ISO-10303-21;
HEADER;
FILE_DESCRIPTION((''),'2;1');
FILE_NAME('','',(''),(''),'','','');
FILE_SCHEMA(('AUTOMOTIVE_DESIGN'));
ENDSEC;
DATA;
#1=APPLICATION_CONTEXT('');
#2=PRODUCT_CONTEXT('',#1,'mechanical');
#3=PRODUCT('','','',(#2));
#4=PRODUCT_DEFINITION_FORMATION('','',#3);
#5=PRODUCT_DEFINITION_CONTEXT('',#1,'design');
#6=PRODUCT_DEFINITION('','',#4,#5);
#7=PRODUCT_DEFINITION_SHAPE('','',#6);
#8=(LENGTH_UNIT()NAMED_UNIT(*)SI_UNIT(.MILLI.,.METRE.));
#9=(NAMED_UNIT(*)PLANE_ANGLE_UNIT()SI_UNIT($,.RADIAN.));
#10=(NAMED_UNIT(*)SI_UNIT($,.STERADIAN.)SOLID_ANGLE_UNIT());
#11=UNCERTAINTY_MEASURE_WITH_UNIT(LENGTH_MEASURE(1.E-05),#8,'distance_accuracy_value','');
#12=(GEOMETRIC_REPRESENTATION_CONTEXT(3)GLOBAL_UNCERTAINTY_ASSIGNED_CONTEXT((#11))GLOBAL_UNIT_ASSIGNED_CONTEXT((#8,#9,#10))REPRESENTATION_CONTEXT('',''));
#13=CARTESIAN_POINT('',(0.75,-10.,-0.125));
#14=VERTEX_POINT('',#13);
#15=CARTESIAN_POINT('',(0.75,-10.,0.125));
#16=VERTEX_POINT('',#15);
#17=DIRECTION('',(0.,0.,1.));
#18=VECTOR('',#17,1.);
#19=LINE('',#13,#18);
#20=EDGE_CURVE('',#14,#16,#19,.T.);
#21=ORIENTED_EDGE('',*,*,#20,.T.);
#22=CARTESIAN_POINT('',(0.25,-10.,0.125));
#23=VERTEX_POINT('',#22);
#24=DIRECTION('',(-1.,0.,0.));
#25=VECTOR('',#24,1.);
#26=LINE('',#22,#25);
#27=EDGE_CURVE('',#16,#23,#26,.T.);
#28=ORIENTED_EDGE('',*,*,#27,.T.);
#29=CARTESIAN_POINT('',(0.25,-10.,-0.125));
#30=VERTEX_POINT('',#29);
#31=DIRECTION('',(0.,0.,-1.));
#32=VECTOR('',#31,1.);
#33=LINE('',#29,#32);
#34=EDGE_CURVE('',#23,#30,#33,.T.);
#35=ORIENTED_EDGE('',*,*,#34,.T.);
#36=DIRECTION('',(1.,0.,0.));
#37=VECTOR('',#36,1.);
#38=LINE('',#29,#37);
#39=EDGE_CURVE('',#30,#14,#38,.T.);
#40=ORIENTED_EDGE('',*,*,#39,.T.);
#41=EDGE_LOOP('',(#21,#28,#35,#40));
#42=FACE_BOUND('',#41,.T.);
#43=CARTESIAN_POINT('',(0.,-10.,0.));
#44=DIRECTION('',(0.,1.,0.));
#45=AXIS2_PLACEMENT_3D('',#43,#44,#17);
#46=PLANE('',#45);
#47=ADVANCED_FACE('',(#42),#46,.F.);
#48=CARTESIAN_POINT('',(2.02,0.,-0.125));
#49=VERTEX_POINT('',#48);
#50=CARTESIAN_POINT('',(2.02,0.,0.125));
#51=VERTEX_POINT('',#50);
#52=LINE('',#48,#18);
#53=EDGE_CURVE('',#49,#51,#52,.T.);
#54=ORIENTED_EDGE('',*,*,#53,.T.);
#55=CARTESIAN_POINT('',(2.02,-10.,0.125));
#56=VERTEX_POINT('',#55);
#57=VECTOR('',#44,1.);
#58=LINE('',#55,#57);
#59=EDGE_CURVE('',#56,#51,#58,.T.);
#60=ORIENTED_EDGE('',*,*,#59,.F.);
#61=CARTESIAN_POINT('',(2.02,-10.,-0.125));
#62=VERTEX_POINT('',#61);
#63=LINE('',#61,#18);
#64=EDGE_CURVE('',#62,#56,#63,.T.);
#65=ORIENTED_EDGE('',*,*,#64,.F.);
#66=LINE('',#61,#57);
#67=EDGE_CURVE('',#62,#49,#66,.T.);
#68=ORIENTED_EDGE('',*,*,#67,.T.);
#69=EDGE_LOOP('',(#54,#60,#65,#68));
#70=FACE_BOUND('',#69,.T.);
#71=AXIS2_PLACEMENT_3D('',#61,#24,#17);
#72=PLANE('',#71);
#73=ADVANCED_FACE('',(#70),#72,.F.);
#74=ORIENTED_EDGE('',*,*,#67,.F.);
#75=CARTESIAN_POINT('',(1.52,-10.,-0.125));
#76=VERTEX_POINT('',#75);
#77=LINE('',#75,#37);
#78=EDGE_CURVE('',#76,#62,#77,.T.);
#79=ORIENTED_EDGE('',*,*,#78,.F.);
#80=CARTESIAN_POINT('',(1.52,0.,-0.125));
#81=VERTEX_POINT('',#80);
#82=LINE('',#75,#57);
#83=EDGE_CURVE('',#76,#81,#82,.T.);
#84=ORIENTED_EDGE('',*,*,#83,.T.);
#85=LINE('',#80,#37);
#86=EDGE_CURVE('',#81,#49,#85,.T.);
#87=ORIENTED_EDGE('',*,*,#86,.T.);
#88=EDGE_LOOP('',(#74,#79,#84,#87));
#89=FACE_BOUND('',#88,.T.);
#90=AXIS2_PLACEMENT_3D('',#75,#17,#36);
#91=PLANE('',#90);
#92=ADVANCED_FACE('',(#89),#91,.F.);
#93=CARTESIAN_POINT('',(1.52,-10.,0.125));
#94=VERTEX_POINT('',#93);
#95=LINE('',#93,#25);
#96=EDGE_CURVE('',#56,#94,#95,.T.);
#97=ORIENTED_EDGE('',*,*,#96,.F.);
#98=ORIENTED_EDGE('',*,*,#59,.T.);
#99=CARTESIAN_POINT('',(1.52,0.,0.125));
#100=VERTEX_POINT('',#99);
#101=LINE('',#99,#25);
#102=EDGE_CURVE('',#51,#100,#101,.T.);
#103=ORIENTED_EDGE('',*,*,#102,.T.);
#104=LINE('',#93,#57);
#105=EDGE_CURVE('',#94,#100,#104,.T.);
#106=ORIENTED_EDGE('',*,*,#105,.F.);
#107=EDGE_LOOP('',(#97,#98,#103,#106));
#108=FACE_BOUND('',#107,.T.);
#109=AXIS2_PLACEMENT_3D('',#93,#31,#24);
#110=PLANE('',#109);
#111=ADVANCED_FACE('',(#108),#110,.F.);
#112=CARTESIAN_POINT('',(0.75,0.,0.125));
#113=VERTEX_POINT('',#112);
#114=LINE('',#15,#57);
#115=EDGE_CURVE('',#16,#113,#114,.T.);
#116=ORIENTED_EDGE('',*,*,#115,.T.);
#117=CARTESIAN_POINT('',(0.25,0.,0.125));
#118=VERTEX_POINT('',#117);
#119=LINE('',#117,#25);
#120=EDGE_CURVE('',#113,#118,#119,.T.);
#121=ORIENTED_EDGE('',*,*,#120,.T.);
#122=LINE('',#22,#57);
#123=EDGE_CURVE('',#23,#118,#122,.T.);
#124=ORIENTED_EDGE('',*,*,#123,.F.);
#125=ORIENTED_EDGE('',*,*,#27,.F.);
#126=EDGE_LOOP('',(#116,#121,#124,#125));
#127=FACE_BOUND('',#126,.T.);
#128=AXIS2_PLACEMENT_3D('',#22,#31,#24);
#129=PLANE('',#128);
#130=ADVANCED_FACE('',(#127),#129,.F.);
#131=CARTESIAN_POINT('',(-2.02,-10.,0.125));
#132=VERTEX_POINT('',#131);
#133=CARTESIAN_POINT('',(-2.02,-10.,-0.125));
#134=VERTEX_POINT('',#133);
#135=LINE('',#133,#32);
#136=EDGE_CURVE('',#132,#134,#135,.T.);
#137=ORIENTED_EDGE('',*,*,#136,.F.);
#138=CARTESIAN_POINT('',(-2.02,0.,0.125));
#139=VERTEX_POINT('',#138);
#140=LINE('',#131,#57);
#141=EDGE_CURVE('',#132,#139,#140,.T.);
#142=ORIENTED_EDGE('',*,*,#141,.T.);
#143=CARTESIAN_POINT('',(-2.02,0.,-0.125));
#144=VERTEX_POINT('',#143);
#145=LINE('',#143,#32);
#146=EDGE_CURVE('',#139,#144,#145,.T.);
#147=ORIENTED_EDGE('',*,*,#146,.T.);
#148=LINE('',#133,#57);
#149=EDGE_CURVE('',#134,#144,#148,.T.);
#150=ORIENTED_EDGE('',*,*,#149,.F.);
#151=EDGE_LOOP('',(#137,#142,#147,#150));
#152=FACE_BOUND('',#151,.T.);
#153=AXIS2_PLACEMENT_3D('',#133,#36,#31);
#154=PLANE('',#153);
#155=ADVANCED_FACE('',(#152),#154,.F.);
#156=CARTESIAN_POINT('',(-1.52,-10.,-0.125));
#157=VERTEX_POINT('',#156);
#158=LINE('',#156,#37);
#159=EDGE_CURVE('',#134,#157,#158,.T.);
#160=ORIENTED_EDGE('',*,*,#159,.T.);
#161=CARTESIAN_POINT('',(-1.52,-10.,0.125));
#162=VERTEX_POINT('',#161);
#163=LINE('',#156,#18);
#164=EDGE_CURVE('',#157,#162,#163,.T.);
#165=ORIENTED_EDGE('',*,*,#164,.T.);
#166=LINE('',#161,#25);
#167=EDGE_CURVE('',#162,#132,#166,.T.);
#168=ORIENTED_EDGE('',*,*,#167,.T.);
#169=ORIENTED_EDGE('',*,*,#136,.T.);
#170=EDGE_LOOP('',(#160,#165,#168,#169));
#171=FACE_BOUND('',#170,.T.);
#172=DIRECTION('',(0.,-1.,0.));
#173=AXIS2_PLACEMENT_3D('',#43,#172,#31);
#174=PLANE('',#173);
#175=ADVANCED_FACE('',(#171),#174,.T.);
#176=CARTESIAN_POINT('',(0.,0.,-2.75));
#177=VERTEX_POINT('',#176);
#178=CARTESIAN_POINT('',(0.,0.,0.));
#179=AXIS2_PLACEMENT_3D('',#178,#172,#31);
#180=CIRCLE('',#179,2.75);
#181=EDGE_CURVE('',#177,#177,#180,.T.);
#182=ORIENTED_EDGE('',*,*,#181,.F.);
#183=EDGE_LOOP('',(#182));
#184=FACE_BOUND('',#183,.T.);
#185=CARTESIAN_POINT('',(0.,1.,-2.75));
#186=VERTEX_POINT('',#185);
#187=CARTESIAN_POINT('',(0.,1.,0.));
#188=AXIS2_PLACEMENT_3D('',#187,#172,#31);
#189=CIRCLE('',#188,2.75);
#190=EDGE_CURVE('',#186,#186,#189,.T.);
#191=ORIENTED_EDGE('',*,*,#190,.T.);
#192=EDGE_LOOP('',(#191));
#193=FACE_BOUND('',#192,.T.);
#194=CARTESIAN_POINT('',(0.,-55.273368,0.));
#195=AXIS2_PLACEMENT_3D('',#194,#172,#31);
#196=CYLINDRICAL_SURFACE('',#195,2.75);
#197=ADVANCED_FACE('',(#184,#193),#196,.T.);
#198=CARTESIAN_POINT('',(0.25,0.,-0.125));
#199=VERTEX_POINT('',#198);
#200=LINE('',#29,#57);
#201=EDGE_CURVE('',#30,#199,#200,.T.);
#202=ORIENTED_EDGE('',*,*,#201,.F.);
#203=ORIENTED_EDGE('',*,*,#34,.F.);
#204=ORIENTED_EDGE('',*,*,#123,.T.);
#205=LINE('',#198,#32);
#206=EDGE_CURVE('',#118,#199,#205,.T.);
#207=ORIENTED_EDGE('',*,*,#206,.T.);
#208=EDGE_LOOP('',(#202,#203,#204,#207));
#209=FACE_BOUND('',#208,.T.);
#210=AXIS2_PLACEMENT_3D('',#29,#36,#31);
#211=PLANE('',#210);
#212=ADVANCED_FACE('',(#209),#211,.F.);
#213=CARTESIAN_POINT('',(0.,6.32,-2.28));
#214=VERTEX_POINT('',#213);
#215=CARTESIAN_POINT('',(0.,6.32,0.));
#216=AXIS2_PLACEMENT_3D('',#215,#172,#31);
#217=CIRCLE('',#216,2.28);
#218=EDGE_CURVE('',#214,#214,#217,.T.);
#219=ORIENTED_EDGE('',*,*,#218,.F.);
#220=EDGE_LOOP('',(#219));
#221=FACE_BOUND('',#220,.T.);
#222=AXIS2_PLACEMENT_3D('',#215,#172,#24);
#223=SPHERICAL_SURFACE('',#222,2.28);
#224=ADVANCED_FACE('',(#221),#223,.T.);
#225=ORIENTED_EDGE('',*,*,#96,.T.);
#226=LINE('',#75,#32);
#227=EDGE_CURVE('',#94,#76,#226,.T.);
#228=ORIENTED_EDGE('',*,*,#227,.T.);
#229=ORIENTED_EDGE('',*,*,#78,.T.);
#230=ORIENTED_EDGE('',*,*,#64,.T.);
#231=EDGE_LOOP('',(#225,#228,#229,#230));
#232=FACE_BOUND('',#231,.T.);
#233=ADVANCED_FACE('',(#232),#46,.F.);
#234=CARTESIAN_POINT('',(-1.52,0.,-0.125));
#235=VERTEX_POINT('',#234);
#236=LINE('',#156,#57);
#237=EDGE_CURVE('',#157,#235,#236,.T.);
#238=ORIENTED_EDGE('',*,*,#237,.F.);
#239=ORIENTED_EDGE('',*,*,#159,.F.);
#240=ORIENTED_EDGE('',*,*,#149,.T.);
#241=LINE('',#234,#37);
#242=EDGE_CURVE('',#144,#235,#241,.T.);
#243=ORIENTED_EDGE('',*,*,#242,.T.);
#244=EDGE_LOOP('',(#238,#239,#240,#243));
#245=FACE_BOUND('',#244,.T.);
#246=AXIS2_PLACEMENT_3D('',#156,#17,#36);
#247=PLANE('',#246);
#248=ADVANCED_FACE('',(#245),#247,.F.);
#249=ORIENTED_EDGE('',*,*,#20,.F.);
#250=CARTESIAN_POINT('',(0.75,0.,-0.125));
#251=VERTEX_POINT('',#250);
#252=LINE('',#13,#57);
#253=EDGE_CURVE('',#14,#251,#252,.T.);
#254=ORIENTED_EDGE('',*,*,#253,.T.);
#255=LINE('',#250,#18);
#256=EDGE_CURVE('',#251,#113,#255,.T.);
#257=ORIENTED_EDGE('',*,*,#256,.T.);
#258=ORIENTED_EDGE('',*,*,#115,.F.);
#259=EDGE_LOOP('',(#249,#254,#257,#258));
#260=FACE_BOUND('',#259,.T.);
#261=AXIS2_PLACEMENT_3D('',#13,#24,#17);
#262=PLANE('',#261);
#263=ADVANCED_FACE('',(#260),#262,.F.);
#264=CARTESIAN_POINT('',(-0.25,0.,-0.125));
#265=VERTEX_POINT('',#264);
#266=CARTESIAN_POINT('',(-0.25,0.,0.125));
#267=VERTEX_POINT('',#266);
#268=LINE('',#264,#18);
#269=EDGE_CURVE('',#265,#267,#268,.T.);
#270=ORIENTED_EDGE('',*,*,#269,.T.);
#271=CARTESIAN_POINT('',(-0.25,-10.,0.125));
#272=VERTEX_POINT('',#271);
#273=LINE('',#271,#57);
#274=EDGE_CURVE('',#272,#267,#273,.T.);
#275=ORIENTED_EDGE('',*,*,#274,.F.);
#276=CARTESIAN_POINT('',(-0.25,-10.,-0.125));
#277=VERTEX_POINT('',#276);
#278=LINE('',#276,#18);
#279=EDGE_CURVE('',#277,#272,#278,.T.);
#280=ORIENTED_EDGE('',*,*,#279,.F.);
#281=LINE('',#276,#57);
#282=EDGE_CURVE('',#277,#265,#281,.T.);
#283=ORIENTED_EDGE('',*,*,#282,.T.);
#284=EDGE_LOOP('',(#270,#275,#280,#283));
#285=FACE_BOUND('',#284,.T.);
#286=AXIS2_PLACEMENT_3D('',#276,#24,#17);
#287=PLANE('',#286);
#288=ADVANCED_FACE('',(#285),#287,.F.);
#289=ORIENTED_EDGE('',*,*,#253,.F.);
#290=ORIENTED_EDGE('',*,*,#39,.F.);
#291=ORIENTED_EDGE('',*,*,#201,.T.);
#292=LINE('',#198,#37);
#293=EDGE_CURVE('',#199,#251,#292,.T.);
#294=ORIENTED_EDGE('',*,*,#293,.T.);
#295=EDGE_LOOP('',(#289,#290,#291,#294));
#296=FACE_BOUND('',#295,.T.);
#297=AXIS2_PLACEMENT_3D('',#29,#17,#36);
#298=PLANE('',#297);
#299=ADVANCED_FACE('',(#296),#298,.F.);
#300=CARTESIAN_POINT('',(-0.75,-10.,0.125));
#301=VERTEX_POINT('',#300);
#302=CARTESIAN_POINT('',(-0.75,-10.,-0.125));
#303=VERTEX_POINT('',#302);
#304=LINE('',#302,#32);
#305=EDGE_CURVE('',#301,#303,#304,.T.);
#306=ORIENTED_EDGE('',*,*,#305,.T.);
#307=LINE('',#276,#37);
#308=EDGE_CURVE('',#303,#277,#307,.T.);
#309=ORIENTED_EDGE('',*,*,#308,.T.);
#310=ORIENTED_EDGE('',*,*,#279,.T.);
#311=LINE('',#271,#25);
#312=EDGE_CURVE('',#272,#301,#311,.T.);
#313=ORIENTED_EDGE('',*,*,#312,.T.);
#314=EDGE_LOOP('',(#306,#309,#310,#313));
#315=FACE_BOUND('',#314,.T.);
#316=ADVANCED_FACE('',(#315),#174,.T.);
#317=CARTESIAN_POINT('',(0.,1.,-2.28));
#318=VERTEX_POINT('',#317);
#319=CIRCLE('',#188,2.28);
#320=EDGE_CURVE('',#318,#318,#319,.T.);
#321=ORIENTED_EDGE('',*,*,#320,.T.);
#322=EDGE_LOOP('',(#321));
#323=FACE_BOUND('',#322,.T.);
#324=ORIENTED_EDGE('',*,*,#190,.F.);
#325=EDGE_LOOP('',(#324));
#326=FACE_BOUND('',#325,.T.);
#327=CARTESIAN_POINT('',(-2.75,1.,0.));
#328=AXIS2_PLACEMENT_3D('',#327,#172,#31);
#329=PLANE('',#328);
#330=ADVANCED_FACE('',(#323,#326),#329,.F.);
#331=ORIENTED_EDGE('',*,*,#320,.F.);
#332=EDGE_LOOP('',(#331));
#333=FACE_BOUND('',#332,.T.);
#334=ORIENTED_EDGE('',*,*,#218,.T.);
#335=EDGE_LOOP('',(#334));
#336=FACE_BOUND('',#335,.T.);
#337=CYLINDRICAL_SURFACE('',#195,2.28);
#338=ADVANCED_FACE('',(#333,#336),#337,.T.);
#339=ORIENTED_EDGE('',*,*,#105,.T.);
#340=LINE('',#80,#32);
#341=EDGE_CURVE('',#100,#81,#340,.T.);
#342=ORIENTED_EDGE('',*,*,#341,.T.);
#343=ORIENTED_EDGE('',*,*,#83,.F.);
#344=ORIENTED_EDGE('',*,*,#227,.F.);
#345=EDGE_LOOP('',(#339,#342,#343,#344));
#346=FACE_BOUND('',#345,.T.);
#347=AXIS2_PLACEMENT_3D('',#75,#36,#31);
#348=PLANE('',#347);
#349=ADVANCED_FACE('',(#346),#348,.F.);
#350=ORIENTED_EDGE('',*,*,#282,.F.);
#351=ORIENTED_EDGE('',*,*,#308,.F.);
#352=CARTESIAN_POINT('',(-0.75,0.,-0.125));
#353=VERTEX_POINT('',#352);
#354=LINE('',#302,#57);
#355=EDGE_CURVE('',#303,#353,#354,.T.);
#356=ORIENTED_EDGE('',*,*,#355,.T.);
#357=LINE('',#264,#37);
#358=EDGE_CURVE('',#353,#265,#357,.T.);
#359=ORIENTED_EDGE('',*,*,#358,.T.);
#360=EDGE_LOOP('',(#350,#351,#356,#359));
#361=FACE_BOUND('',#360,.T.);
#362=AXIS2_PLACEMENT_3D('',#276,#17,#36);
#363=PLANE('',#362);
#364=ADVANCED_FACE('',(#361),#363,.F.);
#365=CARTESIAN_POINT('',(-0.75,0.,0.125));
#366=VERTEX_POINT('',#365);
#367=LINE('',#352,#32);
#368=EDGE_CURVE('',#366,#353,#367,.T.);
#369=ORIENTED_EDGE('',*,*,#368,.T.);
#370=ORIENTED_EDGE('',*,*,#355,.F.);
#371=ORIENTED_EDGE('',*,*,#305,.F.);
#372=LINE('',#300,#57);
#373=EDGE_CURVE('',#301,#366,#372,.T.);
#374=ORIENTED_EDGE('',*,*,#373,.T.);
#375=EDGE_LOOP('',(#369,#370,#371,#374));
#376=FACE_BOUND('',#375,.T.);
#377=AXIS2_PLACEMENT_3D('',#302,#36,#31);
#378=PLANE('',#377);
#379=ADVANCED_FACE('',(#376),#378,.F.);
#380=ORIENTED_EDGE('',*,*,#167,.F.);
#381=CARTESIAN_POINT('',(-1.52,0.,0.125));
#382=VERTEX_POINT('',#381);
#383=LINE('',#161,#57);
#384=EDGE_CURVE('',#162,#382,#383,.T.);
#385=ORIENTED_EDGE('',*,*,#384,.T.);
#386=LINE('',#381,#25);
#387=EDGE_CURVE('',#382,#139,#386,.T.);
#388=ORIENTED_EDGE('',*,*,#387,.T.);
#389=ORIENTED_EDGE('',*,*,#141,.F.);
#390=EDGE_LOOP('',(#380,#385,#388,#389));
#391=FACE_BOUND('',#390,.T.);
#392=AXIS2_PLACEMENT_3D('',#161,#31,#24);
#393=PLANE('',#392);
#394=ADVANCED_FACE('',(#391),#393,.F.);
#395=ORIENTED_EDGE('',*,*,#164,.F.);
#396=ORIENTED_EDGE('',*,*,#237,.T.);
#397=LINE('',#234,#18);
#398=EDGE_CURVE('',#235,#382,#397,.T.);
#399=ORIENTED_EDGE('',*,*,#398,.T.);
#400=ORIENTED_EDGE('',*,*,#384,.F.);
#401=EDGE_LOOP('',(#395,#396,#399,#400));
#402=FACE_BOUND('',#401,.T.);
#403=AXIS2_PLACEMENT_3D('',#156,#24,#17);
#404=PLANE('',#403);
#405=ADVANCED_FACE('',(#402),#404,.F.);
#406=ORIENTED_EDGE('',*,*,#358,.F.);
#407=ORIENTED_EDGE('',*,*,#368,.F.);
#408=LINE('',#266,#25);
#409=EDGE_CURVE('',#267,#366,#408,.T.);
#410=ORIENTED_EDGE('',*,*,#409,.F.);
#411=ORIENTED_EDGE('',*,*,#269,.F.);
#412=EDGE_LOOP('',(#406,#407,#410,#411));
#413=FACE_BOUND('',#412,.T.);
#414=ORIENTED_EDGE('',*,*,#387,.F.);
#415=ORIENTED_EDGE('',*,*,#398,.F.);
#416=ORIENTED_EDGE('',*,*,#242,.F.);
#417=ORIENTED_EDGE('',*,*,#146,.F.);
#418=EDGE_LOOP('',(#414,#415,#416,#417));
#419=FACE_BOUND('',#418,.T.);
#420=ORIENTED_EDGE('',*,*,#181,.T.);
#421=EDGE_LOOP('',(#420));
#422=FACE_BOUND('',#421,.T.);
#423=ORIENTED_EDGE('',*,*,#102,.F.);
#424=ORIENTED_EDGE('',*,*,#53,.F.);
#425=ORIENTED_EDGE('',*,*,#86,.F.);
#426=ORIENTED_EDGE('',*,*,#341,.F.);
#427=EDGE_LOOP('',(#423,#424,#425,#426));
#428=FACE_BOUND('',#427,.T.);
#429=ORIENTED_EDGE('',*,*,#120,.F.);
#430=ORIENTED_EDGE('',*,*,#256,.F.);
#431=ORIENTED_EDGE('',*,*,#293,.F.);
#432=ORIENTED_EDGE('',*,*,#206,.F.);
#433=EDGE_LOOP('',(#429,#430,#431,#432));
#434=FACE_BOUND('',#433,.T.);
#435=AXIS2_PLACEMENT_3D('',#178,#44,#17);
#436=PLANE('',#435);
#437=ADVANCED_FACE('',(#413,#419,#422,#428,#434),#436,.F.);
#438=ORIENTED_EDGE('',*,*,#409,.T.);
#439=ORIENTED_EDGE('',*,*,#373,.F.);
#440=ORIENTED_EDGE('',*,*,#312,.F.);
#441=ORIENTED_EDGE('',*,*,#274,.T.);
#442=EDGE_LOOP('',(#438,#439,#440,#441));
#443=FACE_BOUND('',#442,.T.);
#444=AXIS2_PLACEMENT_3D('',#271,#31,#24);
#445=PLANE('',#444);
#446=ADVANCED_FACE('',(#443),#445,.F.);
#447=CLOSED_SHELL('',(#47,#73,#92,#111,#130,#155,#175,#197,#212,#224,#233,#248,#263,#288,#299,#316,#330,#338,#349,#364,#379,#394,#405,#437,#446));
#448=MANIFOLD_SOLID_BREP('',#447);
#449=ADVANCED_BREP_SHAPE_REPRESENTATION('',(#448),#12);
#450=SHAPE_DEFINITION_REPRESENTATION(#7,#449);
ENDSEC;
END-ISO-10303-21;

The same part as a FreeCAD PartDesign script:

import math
import FreeCAD as App
import Part
import Sketcher
from FreeCAD import Vector
Q = App.Units.Quantity


def add_polygon(sketch, points):
    """Adds a closed chain of lines whose ends are joined by coincident constraints."""
    first, n = sketch.GeometryCount, len(points)
    for a, b in zip(points, points[1:] + points[:1]):
        sketch.addGeometry(Part.LineSegment(App.Vector(*a, 0), App.Vector(*b, 0)), False)
    for i in range(n):
        sketch.addConstraint(Sketcher.Constraint("Coincident", first + i, 2, first + (i + 1) % n, 1))

doc = App.newDocument("Part")
body = doc.addObject("PartDesign::Body", "Body")

sketch1 = body.newObject("Sketcher::SketchObject", "Sketch")
sketch1.AttachmentSupport = (doc.getObject("XY_Plane"), [""])
sketch1.MapMode = "FlatFace"
sketch1.addGeometry([
    Part.LineSegment(Vector(-2.75, 0, 0), Vector(0, 0, 0)),
    Part.LineSegment(Vector(0, 0, 0), Vector(0, 8.6, 0)),
    Part.ArcOfCircle(Part.Circle(Vector(0, 6.32, 0), Vector(0, 0, 1), 2.28), math.radians(90), math.radians(180)),
    Part.LineSegment(Vector(-2.28, 6.32, 0), Vector(-2.28, 1, 0)),
    Part.LineSegment(Vector(-2.28, 1, 0), Vector(-2.75, 1, 0)),
    Part.LineSegment(Vector(-2.75, 1, 0), Vector(-2.75, 0, 0)),
], False)
sketch1.addConstraint([
    Sketcher.Constraint("Coincident", 0, 2, 1, 1),
    Sketcher.Constraint("Coincident", 1, 2, 2, 1),
    Sketcher.Constraint("Tangent", 2, 2, 3, 1),
    Sketcher.Constraint("Coincident", 3, 2, 4, 1),
    Sketcher.Constraint("Coincident", 4, 2, 5, 1),
    Sketcher.Constraint("Coincident", 5, 2, 0, 1),
    Sketcher.Constraint("Horizontal", 0),
    Sketcher.Constraint("Vertical", 1),
    Sketcher.Constraint("Vertical", 3),
    Sketcher.Constraint("Horizontal", 4),
    Sketcher.Constraint("Vertical", 5),
    Sketcher.Constraint("Coincident", 0, 2, -1, 1),
    Sketcher.Constraint("PointOnObject", 2, 3, -2),
    Sketcher.Constraint("DistanceY", 5, 2, 5, 1, Q("1 mm")),
    Sketcher.Constraint("Radius", 2, Q("2.28 mm")),
    Sketcher.Constraint("DistanceY", 1, 1, 1, 2, Q("8.6 mm")),
    Sketcher.Constraint("DistanceX", 0, 1, 0, 2, Q("2.75 mm")),
])
revolution = body.newObject("PartDesign::Revolution", "Revolution")
revolution.Profile = sketch1
revolution.ReferenceAxis = (sketch1, ["V_Axis"])
revolution.Angle = 360

sketch2 = body.newObject("Sketcher::SketchObject", "Sketch001")
sketch2.AttachmentSupport = (doc.getObject("XZ_Plane"), [""])
sketch2.MapMode = "FlatFace"
add_polygon(sketch2, [(-0.75, 0.125), (-0.75, -0.125), (-0.25, -0.125), (-0.25, 0.125)])
add_polygon(sketch2, [(-2.02, 0.125), (-2.02, -0.125), (-1.52, -0.125), (-1.52, 0.125)])
add_polygon(sketch2, [(1.52, 0.125), (1.52, -0.125), (2.02, -0.125), (2.02, 0.125)])
add_polygon(sketch2, [(0.25, 0.125), (0.25, -0.125), (0.75, -0.125), (0.75, 0.125)])
sketch2.addConstraint([
    Sketcher.Constraint("Vertical", 0),
    Sketcher.Constraint("Horizontal", 1),
    Sketcher.Constraint("Vertical", 2),
    Sketcher.Constraint("Horizontal", 3),
    Sketcher.Constraint("Vertical", 4),
    Sketcher.Constraint("Horizontal", 5),
    Sketcher.Constraint("Vertical", 6),
    Sketcher.Constraint("Horizontal", 7),
    Sketcher.Constraint("Vertical", 8),
    Sketcher.Constraint("Horizontal", 9),
    Sketcher.Constraint("Vertical", 10),
    Sketcher.Constraint("Horizontal", 11),
    Sketcher.Constraint("Vertical", 12),
    Sketcher.Constraint("Horizontal", 13),
    Sketcher.Constraint("Vertical", 14),
    Sketcher.Constraint("Horizontal", 15),
    Sketcher.Constraint("Symmetric", 6, 2, 8, 2, -1, 1),
    Sketcher.Constraint("Symmetric", 4, 2, 10, 2, -1, 1),
    Sketcher.Constraint("Symmetric", 2, 2, 12, 2, -1, 1),
    Sketcher.Constraint("Symmetric", 0, 2, 14, 2, -1, 1),
    Sketcher.Constraint("Horizontal", 1, 2, 4, 2),
    Sketcher.Constraint("Horizontal", 3, 2, 6, 2),
    Sketcher.Constraint("Horizontal", 5, 2, 8, 2),
    Sketcher.Constraint("Equal", 3, 5),
    Sketcher.Constraint("DistanceX", 1, 1, 1, 2, Q("0.5 mm")),
    Sketcher.Constraint("DistanceX", 0, 2, 12, 2, Q("1 mm")),
    Sketcher.Constraint("DistanceY", 0, 2, 0, 1, Q("0.25 mm")),
    Sketcher.Constraint("DistanceX", 4, 2, -1, 1, Q("2.02 mm")),
])
pad1 = body.newObject("PartDesign::Pad", "Pad")
pad1.Profile = sketch2
pad1.Length = 10

doc.recompute()
